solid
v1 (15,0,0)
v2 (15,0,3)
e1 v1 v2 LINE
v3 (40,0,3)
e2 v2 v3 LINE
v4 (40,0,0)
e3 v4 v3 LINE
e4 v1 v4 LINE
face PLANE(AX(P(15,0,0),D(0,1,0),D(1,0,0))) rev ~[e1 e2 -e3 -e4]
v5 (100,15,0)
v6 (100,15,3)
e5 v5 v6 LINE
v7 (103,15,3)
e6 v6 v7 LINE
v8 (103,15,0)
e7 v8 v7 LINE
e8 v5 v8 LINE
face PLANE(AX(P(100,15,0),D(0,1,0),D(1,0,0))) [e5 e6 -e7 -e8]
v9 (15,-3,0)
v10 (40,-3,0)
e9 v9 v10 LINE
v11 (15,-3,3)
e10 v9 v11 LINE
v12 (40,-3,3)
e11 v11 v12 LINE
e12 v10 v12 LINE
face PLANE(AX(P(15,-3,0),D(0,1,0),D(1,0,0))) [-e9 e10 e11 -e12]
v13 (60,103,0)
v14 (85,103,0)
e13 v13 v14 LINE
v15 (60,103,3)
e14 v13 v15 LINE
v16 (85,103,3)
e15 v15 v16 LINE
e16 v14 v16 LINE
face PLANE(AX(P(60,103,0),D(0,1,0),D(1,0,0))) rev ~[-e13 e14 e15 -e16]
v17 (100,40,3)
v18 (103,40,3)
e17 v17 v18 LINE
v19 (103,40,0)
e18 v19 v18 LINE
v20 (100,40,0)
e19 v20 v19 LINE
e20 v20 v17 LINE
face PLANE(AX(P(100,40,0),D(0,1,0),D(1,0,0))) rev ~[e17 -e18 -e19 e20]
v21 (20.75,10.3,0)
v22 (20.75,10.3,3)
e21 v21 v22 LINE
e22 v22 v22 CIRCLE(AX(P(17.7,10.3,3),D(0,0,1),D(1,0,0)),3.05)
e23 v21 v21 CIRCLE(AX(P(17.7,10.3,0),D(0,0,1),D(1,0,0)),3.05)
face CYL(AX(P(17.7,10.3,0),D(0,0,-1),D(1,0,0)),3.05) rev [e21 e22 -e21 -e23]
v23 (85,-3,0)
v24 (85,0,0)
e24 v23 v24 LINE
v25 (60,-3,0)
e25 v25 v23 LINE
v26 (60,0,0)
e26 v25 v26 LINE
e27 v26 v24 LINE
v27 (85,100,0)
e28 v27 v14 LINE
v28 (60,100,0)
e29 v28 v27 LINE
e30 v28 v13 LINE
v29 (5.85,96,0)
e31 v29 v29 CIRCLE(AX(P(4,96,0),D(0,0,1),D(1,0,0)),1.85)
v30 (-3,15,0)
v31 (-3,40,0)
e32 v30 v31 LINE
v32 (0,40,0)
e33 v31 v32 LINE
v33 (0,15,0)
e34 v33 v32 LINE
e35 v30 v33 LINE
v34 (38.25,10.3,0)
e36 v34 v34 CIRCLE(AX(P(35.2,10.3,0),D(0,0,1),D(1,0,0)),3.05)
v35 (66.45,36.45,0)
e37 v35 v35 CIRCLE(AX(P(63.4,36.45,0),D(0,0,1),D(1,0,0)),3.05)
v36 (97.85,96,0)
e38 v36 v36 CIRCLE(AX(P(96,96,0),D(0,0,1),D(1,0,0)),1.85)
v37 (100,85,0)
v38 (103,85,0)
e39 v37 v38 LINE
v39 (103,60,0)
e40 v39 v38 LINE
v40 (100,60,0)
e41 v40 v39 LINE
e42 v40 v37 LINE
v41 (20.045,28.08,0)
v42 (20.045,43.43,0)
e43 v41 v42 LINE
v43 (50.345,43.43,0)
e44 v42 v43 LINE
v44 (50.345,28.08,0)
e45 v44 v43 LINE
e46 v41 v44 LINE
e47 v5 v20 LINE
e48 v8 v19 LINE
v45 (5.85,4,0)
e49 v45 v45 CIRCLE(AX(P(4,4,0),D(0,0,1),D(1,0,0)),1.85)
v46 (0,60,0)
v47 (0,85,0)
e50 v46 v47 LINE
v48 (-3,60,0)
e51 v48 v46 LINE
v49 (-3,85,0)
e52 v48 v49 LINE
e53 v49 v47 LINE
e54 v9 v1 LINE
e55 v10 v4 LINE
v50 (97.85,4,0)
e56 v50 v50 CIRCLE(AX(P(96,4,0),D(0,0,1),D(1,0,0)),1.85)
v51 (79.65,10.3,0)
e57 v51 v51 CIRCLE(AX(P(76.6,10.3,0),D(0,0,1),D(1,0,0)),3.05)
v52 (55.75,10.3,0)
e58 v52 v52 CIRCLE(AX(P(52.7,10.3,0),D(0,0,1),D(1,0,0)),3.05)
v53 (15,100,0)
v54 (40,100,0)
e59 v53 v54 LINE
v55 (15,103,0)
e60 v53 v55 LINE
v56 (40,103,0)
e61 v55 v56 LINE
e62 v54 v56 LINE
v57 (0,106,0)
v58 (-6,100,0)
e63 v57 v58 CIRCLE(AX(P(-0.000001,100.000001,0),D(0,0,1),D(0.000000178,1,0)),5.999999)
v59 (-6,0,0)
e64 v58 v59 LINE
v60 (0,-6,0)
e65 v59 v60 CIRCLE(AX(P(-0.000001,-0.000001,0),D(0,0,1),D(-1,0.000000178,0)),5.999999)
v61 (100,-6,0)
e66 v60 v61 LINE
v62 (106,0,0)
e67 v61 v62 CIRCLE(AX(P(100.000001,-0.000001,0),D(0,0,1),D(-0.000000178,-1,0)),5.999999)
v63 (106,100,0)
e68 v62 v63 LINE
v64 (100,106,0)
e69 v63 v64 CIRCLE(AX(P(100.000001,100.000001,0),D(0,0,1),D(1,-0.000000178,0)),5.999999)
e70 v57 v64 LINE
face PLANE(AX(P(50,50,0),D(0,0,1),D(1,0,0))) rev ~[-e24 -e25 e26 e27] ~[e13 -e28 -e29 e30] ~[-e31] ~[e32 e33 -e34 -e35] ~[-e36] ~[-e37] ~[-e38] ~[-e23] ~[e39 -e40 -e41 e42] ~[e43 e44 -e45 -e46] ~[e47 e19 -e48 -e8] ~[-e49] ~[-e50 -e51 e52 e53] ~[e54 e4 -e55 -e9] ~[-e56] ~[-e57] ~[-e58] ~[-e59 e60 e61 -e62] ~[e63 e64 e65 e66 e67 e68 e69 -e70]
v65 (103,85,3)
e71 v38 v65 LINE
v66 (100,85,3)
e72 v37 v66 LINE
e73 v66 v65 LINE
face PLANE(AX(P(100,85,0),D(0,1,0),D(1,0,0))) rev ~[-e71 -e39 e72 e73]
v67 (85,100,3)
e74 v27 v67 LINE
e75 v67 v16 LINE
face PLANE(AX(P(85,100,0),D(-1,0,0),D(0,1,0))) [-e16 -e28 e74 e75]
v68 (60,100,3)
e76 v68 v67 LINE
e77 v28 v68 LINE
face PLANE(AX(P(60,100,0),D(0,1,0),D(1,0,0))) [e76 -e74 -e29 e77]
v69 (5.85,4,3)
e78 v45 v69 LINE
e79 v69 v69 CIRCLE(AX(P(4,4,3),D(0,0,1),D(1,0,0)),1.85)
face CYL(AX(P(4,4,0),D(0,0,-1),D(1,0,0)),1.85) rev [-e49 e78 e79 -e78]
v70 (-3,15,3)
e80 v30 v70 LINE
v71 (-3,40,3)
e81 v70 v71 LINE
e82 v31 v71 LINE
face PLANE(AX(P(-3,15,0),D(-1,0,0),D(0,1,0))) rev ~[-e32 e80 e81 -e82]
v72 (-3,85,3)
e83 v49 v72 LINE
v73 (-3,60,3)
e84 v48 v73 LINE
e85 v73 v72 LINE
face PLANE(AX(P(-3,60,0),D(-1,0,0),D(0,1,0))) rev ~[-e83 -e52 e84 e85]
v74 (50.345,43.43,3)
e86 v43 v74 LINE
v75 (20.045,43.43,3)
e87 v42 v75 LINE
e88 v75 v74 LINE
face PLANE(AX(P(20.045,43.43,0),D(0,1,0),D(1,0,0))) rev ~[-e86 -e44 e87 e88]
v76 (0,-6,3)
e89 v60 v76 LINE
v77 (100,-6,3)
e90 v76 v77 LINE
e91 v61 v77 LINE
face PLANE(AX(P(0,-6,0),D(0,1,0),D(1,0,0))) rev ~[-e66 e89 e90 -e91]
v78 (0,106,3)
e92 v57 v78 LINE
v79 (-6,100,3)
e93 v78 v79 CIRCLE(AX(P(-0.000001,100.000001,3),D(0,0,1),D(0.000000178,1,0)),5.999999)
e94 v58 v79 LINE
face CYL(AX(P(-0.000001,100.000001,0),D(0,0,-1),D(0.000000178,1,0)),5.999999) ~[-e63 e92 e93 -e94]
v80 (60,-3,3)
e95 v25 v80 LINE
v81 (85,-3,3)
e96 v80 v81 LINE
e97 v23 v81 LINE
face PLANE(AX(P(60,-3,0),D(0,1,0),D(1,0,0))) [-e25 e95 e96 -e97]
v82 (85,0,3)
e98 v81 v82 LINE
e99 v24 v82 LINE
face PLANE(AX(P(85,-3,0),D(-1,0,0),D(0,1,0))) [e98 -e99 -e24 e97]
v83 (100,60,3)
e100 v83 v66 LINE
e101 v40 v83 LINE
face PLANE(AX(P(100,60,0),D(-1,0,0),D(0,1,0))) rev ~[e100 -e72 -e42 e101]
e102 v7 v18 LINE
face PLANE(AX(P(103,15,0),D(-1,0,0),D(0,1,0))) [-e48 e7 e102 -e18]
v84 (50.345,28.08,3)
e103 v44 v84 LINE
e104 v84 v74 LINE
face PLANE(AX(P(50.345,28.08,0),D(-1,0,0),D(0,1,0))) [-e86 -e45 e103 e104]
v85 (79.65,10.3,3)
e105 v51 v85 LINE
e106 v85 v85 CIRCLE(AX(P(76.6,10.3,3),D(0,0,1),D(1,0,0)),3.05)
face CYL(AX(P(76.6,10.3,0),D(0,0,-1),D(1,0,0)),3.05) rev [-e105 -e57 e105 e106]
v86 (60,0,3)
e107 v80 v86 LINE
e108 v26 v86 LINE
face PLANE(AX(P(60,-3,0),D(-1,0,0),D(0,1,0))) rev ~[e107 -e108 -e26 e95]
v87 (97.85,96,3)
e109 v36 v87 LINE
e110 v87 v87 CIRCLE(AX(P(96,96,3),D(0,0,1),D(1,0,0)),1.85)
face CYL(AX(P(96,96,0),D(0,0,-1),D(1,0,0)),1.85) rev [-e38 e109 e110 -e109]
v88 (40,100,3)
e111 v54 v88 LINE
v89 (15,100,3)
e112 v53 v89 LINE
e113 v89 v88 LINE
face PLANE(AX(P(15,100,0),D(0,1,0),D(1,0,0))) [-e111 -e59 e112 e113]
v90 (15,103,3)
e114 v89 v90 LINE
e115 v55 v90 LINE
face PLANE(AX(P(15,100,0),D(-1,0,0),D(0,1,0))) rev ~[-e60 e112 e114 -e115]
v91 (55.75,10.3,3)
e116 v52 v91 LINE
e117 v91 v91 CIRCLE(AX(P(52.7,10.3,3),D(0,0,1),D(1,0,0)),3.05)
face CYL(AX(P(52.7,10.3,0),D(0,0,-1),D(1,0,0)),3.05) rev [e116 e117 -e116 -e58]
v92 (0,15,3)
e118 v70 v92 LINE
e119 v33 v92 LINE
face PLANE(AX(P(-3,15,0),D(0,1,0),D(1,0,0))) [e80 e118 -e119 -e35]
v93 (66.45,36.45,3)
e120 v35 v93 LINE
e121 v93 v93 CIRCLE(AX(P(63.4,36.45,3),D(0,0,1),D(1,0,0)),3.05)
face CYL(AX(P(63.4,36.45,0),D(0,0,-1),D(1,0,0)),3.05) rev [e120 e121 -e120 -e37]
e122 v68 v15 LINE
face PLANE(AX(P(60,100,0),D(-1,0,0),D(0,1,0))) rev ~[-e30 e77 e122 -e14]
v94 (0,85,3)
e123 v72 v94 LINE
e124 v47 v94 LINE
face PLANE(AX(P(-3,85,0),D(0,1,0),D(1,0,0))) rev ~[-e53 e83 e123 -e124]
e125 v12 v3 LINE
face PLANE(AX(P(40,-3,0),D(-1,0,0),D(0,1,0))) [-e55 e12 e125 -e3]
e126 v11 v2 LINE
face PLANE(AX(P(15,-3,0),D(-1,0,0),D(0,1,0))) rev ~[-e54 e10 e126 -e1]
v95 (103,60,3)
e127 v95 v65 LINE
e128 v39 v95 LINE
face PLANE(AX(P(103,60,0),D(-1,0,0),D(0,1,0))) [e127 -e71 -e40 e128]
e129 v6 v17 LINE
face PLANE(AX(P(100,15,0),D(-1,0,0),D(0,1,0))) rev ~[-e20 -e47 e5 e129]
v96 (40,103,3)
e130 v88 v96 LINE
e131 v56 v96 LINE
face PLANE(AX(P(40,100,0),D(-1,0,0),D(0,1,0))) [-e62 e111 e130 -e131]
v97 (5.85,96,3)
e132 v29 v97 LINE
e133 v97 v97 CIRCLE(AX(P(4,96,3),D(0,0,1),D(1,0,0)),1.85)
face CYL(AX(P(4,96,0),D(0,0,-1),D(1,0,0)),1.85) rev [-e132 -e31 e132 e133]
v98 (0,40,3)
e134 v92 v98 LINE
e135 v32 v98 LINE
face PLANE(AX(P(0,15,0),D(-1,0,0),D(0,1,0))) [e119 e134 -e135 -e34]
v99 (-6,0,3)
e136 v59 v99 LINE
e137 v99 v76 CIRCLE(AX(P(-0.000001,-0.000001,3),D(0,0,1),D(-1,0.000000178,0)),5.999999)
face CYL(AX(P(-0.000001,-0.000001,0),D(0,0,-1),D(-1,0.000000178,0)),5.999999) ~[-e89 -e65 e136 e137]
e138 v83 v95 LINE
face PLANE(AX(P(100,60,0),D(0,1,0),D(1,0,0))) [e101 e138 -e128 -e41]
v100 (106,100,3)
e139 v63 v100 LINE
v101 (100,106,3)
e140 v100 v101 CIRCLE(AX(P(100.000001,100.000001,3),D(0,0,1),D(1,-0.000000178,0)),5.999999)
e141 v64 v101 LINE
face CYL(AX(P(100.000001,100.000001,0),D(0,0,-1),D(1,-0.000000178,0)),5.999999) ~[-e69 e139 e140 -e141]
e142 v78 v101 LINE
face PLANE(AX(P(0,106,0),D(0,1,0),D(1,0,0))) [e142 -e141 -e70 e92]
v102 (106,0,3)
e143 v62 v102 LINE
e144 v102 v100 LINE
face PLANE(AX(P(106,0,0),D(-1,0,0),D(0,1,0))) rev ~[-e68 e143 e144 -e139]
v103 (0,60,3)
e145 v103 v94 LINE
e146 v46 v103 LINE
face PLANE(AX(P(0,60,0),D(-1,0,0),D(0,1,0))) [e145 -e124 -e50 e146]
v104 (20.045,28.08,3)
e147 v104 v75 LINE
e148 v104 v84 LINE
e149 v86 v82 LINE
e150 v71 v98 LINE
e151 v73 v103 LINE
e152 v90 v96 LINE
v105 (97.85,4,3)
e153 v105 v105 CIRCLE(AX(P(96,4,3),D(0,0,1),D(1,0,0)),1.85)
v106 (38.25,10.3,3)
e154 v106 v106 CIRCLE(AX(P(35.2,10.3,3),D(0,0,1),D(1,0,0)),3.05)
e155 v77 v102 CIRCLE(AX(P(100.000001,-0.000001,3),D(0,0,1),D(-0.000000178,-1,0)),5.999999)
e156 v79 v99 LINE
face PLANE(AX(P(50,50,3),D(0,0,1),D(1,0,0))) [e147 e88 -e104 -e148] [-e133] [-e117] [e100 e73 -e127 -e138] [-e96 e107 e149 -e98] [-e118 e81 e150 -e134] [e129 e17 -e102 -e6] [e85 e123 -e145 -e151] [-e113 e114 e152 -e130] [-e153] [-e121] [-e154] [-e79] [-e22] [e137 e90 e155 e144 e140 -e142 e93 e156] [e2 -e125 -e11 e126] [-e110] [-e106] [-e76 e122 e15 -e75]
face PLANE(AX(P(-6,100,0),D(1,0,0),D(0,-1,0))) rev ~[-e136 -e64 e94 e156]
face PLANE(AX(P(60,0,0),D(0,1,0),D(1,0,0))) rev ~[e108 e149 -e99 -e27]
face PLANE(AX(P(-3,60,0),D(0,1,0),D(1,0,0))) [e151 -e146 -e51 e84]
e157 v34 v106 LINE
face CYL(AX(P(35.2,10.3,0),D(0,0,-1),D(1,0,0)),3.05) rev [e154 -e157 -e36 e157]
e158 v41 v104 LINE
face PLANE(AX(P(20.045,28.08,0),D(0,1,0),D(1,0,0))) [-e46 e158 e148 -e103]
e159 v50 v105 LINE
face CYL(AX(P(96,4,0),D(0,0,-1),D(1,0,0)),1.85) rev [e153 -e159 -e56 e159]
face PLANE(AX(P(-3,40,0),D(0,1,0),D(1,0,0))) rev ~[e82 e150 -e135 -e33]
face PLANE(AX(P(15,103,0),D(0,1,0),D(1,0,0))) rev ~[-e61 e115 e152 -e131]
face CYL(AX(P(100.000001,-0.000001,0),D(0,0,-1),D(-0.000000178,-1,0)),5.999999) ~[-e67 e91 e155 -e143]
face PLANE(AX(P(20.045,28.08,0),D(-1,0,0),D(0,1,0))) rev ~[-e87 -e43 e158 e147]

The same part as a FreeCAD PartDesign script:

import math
import FreeCAD as App
import Part
import Sketcher

V = App.Vector
Q = App.Units.Quantity

doc = App.newDocument("Part")
body = doc.addObject("PartDesign::Body", "Body")

# Sketch on XY plane
sketch1 = body.newObject("Sketcher::SketchObject", "Sketch")
sketch1.AttachmentSupport = (doc.getObject("XY_Plane"), [""])
sketch1.MapMode = "FlatFace"
sketch1.addGeometry([
    Part.ArcOfCircle(Part.Circle(V(-0.000001, 100.000001, 0), V(0, 0, 1), 5.999999), math.radians(89.99999), math.radians(180.00001)),  # 0
    Part.LineSegment(V(-6, 100, 0), V(-6, 0, 0)),  # 1
    Part.ArcOfCircle(Part.Circle(V(-0.000001, -0.000001, 0), V(0, 0, 1), 5.999999), math.radians(179.99999), math.radians(270.00001)),  # 2
    Part.LineSegment(V(0, -6, 0), V(100, -6, 0)),  # 3
    Part.ArcOfCircle(Part.Circle(V(100.000001, -0.000001, 0), V(0, 0, 1), 5.999999), math.radians(-90.00001), math.radians(0.00001)),  # 4
    Part.LineSegment(V(106, 0, 0), V(106, 100, 0)),  # 5
    Part.ArcOfCircle(Part.Circle(V(100.000001, 100.000001, 0), V(0, 0, 1), 5.999999), math.radians(-0.00001), math.radians(90.00001)),  # 6
    Part.LineSegment(V(100, 106, 0), V(0, 106, 0)),  # 7
    Part.Circle(V(4, 4, 0), V(0, 0, 1), 1.85),  # 8
    Part.Circle(V(17.7, 10.3, 0), V(0, 0, 1), 3.05),  # 9
    Part.LineSegment(V(40, -3, 0), V(15, -3, 0)),  # 10
    Part.LineSegment(V(15, -3, 0), V(15, 0, 0)),  # 11
    Part.LineSegment(V(15, 0, 0), V(40, 0, 0)),  # 12
    Part.LineSegment(V(40, 0, 0), V(40, -3, 0)),  # 13
    Part.Circle(V(35.2, 10.3, 0), V(0, 0, 1), 3.05),  # 14
    Part.LineSegment(V(0, 15, 0), V(-3, 15, 0)),  # 15
    Part.LineSegment(V(-3, 15, 0), V(-3, 40, 0)),  # 16
    Part.LineSegment(V(-3, 40, 0), V(0, 40, 0)),  # 17
    Part.LineSegment(V(0, 40, 0), V(0, 15, 0)),  # 18
    Part.LineSegment(V(50.345, 28.08, 0), V(20.045, 28.08, 0)),  # 19
    Part.LineSegment(V(20.045, 28.08, 0), V(20.045, 43.43, 0)),  # 20
    Part.LineSegment(V(20.045, 43.43, 0), V(50.345, 43.43, 0)),  # 21
    Part.LineSegment(V(50.345, 43.43, 0), V(50.345, 28.08, 0)),  # 22
    Part.LineSegment(V(85, -3, 0), V(60, -3, 0)),  # 23
    Part.LineSegment(V(60, -3, 0), V(60, 0, 0)),  # 24
    Part.LineSegment(V(60, 0, 0), V(85, 0, 0)),  # 25
    Part.LineSegment(V(85, 0, 0), V(85, -3, 0)),  # 26
    Part.Circle(V(52.7, 10.3, 0), V(0, 0, 1), 3.05),  # 27
    Part.Circle(V(96, 4, 0), V(0, 0, 1), 1.85),  # 28
    Part.Circle(V(76.6, 10.3, 0), V(0, 0, 1), 3.05),  # 29
    Part.Circle(V(63.4, 36.45, 0), V(0, 0, 1), 3.05),  # 30
    Part.LineSegment(V(103, 15, 0), V(100, 15, 0)),  # 31
    Part.LineSegment(V(100, 15, 0), V(100, 40, 0)),  # 32
    Part.LineSegment(V(100, 40, 0), V(103, 40, 0)),  # 33
    Part.LineSegment(V(103, 40, 0), V(103, 15, 0)),  # 34
    Part.LineSegment(V(0, 60, 0), V(-3, 60, 0)),  # 35
    Part.LineSegment(V(-3, 60, 0), V(-3, 85, 0)),  # 36
    Part.LineSegment(V(-3, 85, 0), V(0, 85, 0)),  # 37
    Part.LineSegment(V(0, 85, 0), V(0, 60, 0)),  # 38
    Part.Circle(V(4, 96, 0), V(0, 0, 1), 1.85),  # 39
    Part.LineSegment(V(40, 100, 0), V(15, 100, 0)),  # 40
    Part.LineSegment(V(15, 100, 0), V(15, 103, 0)),  # 41
    Part.LineSegment(V(15, 103, 0), V(40, 103, 0)),  # 42
    Part.LineSegment(V(40, 103, 0), V(40, 100, 0)),  # 43
    Part.LineSegment(V(103, 60, 0), V(100, 60, 0)),  # 44
    Part.LineSegment(V(100, 60, 0), V(100, 85, 0)),  # 45
    Part.LineSegment(V(100, 85, 0), V(103, 85, 0)),  # 46
    Part.LineSegment(V(103, 85, 0), V(103, 60, 0)),  # 47
    Part.LineSegment(V(85, 100, 0), V(60, 100, 0)),  # 48
    Part.LineSegment(V(60, 100, 0), V(60, 103, 0)),  # 49
    Part.LineSegment(V(60, 103, 0), V(85, 103, 0)),  # 50
    Part.LineSegment(V(85, 103, 0), V(85, 100, 0)),  # 51
    Part.Circle(V(96, 96, 0), V(0, 0, 1), 1.85),  # 52
], False)
sketch1.addConstraint([
    Sketcher.Constraint("Tangent", 0, 2, 1, 1),
    Sketcher.Constraint("Tangent", 1, 2, 2, 1),
    Sketcher.Constraint("Tangent", 2, 2, 3, 1),
    Sketcher.Constraint("Tangent", 3, 2, 4, 1),
    Sketcher.Constraint("Tangent", 4, 2, 5, 1),
    Sketcher.Constraint("Tangent", 5, 2, 6, 1),
    Sketcher.Constraint("Tangent", 6, 2, 7, 1),
    Sketcher.Constraint("Tangent", 7, 2, 0, 1),
    Sketcher.Constraint("Coincident", 10, 2, 11, 1),
    Sketcher.Constraint("Coincident", 11, 2, 12, 1),
    Sketcher.Constraint("Coincident", 12, 2, 13, 1),
    Sketcher.Constraint("Coincident", 13, 2, 10, 1),
    Sketcher.Constraint("Coincident", 15, 2, 16, 1),
    Sketcher.Constraint("Coincident", 16, 2, 17, 1),
    Sketcher.Constraint("Coincident", 17, 2, 18, 1),
    Sketcher.Constraint("Coincident", 18, 2, 15, 1),
    Sketcher.Constraint("Coincident", 19, 2, 20, 1),
    Sketcher.Constraint("Coincident", 20, 2, 21, 1),
    Sketcher.Constraint("Coincident", 21, 2, 22, 1),
    Sketcher.Constraint("Coincident", 22, 2, 19, 1),
    Sketcher.Constraint("Coincident", 23, 2, 24, 1),
    Sketcher.Constraint("Coincident", 24, 2, 25, 1),
    Sketcher.Constraint("Coincident", 25, 2, 26, 1),
    Sketcher.Constraint("Coincident", 26, 2, 23, 1),
    Sketcher.Constraint("Coincident", 31, 2, 32, 1),
    Sketcher.Constraint("Coincident", 32, 2, 33, 1),
    Sketcher.Constraint("Coincident", 33, 2, 34, 1),
    Sketcher.Constraint("Coincident", 34, 2, 31, 1),
    Sketcher.Constraint("Coincident", 35, 2, 36, 1),
    Sketcher.Constraint("Coincident", 36, 2, 37, 1),
    Sketcher.Constraint("Coincident", 37, 2, 38, 1),
    Sketcher.Constraint("Coincident", 38, 2, 35, 1),
    Sketcher.Constraint("Coincident", 40, 2, 41, 1),
    Sketcher.Constraint("Coincident", 41, 2, 42, 1),
    Sketcher.Constraint("Coincident", 42, 2, 43, 1),
    Sketcher.Constraint("Coincident", 43, 2, 40, 1),
    Sketcher.Constraint("Coincident", 44, 2, 45, 1),
    Sketcher.Constraint("Coincident", 45, 2, 46, 1),
    Sketcher.Constraint("Coincident", 46, 2, 47, 1),
    Sketcher.Constraint("Coincident", 47, 2, 44, 1),
    Sketcher.Constraint("Coincident", 48, 2, 49, 1),
    Sketcher.Constraint("Coincident", 49, 2, 50, 1),
    Sketcher.Constraint("Coincident", 50, 2, 51, 1),
    Sketcher.Constraint("Coincident", 51, 2, 48, 1),
    Sketcher.Constraint("Vertical", 1),
    Sketcher.Constraint("Horizontal", 3),
    Sketcher.Constraint("Vertical", 5),
    Sketcher.Constraint("Horizontal", 7),
    Sketcher.Constraint("Horizontal", 10),
    Sketcher.Constraint("Vertical", 11),
    Sketcher.Constraint("Horizontal", 12),
    Sketcher.Constraint("Vertical", 13),
    Sketcher.Constraint("Horizontal", 15),
    Sketcher.Constraint("Vertical", 16),
    Sketcher.Constraint("Horizontal", 17),
    Sketcher.Constraint("Vertical", 18),
    Sketcher.Constraint("Horizontal", 19),
    Sketcher.Constraint("Vertical", 20),
    Sketcher.Constraint("Horizontal", 21),
    Sketcher.Constraint("Vertical", 22),
    Sketcher.Constraint("Horizontal", 23),
    Sketcher.Constraint("Vertical", 24),
    Sketcher.Constraint("Horizontal", 25),
    Sketcher.Constraint("Vertical", 26),
    Sketcher.Constraint("Horizontal", 31),
    Sketcher.Constraint("Vertical", 32),
    Sketcher.Constraint("Horizontal", 33),
    Sketcher.Constraint("Vertical", 34),
    Sketcher.Constraint("Horizontal", 35),
    Sketcher.Constraint("Vertical", 36),
    Sketcher.Constraint("Horizontal", 37),
    Sketcher.Constraint("Vertical", 38),
    Sketcher.Constraint("Horizontal", 40),
    Sketcher.Constraint("Vertical", 41),
    Sketcher.Constraint("Horizontal", 42),
    Sketcher.Constraint("Vertical", 43),
    Sketcher.Constraint("Horizontal", 44),
    Sketcher.Constraint("Vertical", 45),
    Sketcher.Constraint("Horizontal", 46),
    Sketcher.Constraint("Vertical", 47),
    Sketcher.Constraint("Horizontal", 48),
    Sketcher.Constraint("Vertical", 49),
    Sketcher.Constraint("Horizontal", 50),
    Sketcher.Constraint("Vertical", 51),
    Sketcher.Constraint("Coincident", 2, 3, -1, 1),
    Sketcher.Constraint("Equal", 0, 2),
    Sketcher.Constraint("Equal", 2, 4),
    Sketcher.Constraint("Equal", 4, 6),
    Sketcher.Constraint("Equal", 9, 14),
    Sketcher.Constraint("Equal", 14, 27),
    Sketcher.Constraint("Equal", 8, 28),
    Sketcher.Constraint("Equal", 27, 29),
    Sketcher.Constraint("Equal", 29, 30),
    Sketcher.Constraint("Equal", 28, 39),
    Sketcher.Constraint("Equal", 39, 52),
    Sketcher.Constraint("PointOnObject", 11, 2, -1),
    Sketcher.Constraint("PointOnObject", 17, 2, -2),
    Sketcher.Constraint("PointOnObject", 24, 2, -1),
    Sketcher.Constraint("PointOnObject", 37, 2, -2),
    Sketcher.Constraint("Horizontal", 9, 3, 14, 3),
    Sketcher.Constraint("Horizontal", 14, 3, 27, 3),
    Sketcher.Constraint("Horizontal", 8, 3, 28, 3),
    Sketcher.Constraint("Horizontal", 27, 3, 29, 3),
    Sketcher.Constraint("Horizontal", 39, 3, 52, 3),
    Sketcher.Constraint("Horizontal", 13, 2, 23, 2),
    Sketcher.Constraint("Horizontal", 18, 2, 31, 2),
    Sketcher.Constraint("Horizontal", 17, 2, 32, 2),
    Sketcher.Constraint("Horizontal", 5, 2, 40, 2),
    Sketcher.Constraint("Horizontal", 38, 2, 44, 2),
    Sketcher.Constraint("Horizontal", 37, 2, 45, 2),
    Sketcher.Constraint("Horizontal", 43, 2, 48, 2),
    Sketcher.Constraint("Horizontal", 42, 2, 49, 2),
    Sketcher.Constraint("Vertical", 8, 3, 39, 3),
    Sketcher.Constraint("Vertical", 28, 3, 52, 3),
    Sketcher.Constraint("Vertical", 6, 2, 31, 2),
    Sketcher.Constraint("Vertical", 16, 2, 35, 2),
    Sketcher.Constraint("Vertical", 11, 2, 40, 2),
    Sketcher.Constraint("Vertical", 13, 2, 42, 2),
    Sketcher.Constraint("Vertical", 32, 2, 44, 2),
    Sketcher.Constraint("Vertical", 34, 2, 46, 2),
    Sketcher.Constraint("Vertical", 24, 2, 48, 2),
    Sketcher.Constraint("Vertical", 26, 2, 50, 2),
    Sketcher.Constraint("Equal", 12, 23),
    Sketcher.Constraint("Equal", 17, 31),
    Sketcher.Constraint("Equal", 7, 1),
    Sketcher.Constraint("Equal", 46, 11),
    Sketcher.Constraint("Equal", 50, 16),
    Sketcher.Constraint("Equal", 34, 36),
    Sketcher.Constraint("Equal", 26, 41),
    Sketcher.Constraint("Radius", 0, Q("5.999999 mm")),
    Sketcher.Constraint("Diameter", 8, Q("3.7 mm")),
    Sketcher.Constraint("Diameter", 9, Q("6.1 mm")),
    Sketcher.Constraint("DistanceX", 3, 1, 3, 2, Q("100 mm")),
    Sketcher.Constraint("DistanceX", 10, 2, 10, 1, Q("25 mm")),
    Sketcher.Constraint("DistanceX", 15, 2, 15, 1, Q("3 mm")),
    Sketcher.Constraint("DistanceX", 19, 2, 19, 1, Q("30.3 mm")),
    Sketcher.Constraint("DistanceX", -1, 1, 8, 3, Q("4 mm")),
    Sketcher.Constraint("DistanceY", -1, 1, 8, 3, Q("4 mm")),
    Sketcher.Constraint("DistanceX", -1, 1, 28, 3, Q("96 mm")),
    Sketcher.Constraint("DistanceY", -1, 1, 39, 3, Q("96 mm")),
    Sketcher.Constraint("DistanceX", -1, 1, 10, 2, Q("15 mm")),
    Sketcher.Constraint("DistanceY", -1, 1, 15, 2, Q("15 mm")),
    Sketcher.Constraint("DistanceX", -1, 1, 23, 2, Q("60 mm")),
    Sketcher.Constraint("DistanceY", -1, 1, 35, 2, Q("60 mm")),
    Sketcher.Constraint("DistanceX", 9, 3, 27, 3, Q("35 mm")),
    Sketcher.Constraint("DistanceY", 20, 1, 20, 2, Q("15.35 mm")),
    Sketcher.Constraint("DistanceX", -1, 1, 9, 3, Q("17.7 mm")),
    Sketcher.Constraint("DistanceY", -1, 1, 9, 3, Q("10.3 mm")),
    Sketcher.Constraint("DistanceX", -1, 1, 14, 3, Q("35.2 mm")),
    Sketcher.Constraint("DistanceX", -1, 1, 29, 3, Q("76.6 mm")),
    Sketcher.Constraint("DistanceX", -1, 1, 30, 3, Q("63.4 mm")),
    Sketcher.Constraint("DistanceY", -1, 1, 30, 3, Q("36.45 mm")),
    Sketcher.Constraint("DistanceY", -1, 1, 19, 2, Q("28.08 mm")),
    Sketcher.Constraint("DistanceX", -1, 1, 19, 2, Q("20.045 mm")),
])
pad1 = body.newObject("PartDesign::Pad", "Pad")
pad1.Profile = sketch1
pad1.Length = 3

doc.recompute()
